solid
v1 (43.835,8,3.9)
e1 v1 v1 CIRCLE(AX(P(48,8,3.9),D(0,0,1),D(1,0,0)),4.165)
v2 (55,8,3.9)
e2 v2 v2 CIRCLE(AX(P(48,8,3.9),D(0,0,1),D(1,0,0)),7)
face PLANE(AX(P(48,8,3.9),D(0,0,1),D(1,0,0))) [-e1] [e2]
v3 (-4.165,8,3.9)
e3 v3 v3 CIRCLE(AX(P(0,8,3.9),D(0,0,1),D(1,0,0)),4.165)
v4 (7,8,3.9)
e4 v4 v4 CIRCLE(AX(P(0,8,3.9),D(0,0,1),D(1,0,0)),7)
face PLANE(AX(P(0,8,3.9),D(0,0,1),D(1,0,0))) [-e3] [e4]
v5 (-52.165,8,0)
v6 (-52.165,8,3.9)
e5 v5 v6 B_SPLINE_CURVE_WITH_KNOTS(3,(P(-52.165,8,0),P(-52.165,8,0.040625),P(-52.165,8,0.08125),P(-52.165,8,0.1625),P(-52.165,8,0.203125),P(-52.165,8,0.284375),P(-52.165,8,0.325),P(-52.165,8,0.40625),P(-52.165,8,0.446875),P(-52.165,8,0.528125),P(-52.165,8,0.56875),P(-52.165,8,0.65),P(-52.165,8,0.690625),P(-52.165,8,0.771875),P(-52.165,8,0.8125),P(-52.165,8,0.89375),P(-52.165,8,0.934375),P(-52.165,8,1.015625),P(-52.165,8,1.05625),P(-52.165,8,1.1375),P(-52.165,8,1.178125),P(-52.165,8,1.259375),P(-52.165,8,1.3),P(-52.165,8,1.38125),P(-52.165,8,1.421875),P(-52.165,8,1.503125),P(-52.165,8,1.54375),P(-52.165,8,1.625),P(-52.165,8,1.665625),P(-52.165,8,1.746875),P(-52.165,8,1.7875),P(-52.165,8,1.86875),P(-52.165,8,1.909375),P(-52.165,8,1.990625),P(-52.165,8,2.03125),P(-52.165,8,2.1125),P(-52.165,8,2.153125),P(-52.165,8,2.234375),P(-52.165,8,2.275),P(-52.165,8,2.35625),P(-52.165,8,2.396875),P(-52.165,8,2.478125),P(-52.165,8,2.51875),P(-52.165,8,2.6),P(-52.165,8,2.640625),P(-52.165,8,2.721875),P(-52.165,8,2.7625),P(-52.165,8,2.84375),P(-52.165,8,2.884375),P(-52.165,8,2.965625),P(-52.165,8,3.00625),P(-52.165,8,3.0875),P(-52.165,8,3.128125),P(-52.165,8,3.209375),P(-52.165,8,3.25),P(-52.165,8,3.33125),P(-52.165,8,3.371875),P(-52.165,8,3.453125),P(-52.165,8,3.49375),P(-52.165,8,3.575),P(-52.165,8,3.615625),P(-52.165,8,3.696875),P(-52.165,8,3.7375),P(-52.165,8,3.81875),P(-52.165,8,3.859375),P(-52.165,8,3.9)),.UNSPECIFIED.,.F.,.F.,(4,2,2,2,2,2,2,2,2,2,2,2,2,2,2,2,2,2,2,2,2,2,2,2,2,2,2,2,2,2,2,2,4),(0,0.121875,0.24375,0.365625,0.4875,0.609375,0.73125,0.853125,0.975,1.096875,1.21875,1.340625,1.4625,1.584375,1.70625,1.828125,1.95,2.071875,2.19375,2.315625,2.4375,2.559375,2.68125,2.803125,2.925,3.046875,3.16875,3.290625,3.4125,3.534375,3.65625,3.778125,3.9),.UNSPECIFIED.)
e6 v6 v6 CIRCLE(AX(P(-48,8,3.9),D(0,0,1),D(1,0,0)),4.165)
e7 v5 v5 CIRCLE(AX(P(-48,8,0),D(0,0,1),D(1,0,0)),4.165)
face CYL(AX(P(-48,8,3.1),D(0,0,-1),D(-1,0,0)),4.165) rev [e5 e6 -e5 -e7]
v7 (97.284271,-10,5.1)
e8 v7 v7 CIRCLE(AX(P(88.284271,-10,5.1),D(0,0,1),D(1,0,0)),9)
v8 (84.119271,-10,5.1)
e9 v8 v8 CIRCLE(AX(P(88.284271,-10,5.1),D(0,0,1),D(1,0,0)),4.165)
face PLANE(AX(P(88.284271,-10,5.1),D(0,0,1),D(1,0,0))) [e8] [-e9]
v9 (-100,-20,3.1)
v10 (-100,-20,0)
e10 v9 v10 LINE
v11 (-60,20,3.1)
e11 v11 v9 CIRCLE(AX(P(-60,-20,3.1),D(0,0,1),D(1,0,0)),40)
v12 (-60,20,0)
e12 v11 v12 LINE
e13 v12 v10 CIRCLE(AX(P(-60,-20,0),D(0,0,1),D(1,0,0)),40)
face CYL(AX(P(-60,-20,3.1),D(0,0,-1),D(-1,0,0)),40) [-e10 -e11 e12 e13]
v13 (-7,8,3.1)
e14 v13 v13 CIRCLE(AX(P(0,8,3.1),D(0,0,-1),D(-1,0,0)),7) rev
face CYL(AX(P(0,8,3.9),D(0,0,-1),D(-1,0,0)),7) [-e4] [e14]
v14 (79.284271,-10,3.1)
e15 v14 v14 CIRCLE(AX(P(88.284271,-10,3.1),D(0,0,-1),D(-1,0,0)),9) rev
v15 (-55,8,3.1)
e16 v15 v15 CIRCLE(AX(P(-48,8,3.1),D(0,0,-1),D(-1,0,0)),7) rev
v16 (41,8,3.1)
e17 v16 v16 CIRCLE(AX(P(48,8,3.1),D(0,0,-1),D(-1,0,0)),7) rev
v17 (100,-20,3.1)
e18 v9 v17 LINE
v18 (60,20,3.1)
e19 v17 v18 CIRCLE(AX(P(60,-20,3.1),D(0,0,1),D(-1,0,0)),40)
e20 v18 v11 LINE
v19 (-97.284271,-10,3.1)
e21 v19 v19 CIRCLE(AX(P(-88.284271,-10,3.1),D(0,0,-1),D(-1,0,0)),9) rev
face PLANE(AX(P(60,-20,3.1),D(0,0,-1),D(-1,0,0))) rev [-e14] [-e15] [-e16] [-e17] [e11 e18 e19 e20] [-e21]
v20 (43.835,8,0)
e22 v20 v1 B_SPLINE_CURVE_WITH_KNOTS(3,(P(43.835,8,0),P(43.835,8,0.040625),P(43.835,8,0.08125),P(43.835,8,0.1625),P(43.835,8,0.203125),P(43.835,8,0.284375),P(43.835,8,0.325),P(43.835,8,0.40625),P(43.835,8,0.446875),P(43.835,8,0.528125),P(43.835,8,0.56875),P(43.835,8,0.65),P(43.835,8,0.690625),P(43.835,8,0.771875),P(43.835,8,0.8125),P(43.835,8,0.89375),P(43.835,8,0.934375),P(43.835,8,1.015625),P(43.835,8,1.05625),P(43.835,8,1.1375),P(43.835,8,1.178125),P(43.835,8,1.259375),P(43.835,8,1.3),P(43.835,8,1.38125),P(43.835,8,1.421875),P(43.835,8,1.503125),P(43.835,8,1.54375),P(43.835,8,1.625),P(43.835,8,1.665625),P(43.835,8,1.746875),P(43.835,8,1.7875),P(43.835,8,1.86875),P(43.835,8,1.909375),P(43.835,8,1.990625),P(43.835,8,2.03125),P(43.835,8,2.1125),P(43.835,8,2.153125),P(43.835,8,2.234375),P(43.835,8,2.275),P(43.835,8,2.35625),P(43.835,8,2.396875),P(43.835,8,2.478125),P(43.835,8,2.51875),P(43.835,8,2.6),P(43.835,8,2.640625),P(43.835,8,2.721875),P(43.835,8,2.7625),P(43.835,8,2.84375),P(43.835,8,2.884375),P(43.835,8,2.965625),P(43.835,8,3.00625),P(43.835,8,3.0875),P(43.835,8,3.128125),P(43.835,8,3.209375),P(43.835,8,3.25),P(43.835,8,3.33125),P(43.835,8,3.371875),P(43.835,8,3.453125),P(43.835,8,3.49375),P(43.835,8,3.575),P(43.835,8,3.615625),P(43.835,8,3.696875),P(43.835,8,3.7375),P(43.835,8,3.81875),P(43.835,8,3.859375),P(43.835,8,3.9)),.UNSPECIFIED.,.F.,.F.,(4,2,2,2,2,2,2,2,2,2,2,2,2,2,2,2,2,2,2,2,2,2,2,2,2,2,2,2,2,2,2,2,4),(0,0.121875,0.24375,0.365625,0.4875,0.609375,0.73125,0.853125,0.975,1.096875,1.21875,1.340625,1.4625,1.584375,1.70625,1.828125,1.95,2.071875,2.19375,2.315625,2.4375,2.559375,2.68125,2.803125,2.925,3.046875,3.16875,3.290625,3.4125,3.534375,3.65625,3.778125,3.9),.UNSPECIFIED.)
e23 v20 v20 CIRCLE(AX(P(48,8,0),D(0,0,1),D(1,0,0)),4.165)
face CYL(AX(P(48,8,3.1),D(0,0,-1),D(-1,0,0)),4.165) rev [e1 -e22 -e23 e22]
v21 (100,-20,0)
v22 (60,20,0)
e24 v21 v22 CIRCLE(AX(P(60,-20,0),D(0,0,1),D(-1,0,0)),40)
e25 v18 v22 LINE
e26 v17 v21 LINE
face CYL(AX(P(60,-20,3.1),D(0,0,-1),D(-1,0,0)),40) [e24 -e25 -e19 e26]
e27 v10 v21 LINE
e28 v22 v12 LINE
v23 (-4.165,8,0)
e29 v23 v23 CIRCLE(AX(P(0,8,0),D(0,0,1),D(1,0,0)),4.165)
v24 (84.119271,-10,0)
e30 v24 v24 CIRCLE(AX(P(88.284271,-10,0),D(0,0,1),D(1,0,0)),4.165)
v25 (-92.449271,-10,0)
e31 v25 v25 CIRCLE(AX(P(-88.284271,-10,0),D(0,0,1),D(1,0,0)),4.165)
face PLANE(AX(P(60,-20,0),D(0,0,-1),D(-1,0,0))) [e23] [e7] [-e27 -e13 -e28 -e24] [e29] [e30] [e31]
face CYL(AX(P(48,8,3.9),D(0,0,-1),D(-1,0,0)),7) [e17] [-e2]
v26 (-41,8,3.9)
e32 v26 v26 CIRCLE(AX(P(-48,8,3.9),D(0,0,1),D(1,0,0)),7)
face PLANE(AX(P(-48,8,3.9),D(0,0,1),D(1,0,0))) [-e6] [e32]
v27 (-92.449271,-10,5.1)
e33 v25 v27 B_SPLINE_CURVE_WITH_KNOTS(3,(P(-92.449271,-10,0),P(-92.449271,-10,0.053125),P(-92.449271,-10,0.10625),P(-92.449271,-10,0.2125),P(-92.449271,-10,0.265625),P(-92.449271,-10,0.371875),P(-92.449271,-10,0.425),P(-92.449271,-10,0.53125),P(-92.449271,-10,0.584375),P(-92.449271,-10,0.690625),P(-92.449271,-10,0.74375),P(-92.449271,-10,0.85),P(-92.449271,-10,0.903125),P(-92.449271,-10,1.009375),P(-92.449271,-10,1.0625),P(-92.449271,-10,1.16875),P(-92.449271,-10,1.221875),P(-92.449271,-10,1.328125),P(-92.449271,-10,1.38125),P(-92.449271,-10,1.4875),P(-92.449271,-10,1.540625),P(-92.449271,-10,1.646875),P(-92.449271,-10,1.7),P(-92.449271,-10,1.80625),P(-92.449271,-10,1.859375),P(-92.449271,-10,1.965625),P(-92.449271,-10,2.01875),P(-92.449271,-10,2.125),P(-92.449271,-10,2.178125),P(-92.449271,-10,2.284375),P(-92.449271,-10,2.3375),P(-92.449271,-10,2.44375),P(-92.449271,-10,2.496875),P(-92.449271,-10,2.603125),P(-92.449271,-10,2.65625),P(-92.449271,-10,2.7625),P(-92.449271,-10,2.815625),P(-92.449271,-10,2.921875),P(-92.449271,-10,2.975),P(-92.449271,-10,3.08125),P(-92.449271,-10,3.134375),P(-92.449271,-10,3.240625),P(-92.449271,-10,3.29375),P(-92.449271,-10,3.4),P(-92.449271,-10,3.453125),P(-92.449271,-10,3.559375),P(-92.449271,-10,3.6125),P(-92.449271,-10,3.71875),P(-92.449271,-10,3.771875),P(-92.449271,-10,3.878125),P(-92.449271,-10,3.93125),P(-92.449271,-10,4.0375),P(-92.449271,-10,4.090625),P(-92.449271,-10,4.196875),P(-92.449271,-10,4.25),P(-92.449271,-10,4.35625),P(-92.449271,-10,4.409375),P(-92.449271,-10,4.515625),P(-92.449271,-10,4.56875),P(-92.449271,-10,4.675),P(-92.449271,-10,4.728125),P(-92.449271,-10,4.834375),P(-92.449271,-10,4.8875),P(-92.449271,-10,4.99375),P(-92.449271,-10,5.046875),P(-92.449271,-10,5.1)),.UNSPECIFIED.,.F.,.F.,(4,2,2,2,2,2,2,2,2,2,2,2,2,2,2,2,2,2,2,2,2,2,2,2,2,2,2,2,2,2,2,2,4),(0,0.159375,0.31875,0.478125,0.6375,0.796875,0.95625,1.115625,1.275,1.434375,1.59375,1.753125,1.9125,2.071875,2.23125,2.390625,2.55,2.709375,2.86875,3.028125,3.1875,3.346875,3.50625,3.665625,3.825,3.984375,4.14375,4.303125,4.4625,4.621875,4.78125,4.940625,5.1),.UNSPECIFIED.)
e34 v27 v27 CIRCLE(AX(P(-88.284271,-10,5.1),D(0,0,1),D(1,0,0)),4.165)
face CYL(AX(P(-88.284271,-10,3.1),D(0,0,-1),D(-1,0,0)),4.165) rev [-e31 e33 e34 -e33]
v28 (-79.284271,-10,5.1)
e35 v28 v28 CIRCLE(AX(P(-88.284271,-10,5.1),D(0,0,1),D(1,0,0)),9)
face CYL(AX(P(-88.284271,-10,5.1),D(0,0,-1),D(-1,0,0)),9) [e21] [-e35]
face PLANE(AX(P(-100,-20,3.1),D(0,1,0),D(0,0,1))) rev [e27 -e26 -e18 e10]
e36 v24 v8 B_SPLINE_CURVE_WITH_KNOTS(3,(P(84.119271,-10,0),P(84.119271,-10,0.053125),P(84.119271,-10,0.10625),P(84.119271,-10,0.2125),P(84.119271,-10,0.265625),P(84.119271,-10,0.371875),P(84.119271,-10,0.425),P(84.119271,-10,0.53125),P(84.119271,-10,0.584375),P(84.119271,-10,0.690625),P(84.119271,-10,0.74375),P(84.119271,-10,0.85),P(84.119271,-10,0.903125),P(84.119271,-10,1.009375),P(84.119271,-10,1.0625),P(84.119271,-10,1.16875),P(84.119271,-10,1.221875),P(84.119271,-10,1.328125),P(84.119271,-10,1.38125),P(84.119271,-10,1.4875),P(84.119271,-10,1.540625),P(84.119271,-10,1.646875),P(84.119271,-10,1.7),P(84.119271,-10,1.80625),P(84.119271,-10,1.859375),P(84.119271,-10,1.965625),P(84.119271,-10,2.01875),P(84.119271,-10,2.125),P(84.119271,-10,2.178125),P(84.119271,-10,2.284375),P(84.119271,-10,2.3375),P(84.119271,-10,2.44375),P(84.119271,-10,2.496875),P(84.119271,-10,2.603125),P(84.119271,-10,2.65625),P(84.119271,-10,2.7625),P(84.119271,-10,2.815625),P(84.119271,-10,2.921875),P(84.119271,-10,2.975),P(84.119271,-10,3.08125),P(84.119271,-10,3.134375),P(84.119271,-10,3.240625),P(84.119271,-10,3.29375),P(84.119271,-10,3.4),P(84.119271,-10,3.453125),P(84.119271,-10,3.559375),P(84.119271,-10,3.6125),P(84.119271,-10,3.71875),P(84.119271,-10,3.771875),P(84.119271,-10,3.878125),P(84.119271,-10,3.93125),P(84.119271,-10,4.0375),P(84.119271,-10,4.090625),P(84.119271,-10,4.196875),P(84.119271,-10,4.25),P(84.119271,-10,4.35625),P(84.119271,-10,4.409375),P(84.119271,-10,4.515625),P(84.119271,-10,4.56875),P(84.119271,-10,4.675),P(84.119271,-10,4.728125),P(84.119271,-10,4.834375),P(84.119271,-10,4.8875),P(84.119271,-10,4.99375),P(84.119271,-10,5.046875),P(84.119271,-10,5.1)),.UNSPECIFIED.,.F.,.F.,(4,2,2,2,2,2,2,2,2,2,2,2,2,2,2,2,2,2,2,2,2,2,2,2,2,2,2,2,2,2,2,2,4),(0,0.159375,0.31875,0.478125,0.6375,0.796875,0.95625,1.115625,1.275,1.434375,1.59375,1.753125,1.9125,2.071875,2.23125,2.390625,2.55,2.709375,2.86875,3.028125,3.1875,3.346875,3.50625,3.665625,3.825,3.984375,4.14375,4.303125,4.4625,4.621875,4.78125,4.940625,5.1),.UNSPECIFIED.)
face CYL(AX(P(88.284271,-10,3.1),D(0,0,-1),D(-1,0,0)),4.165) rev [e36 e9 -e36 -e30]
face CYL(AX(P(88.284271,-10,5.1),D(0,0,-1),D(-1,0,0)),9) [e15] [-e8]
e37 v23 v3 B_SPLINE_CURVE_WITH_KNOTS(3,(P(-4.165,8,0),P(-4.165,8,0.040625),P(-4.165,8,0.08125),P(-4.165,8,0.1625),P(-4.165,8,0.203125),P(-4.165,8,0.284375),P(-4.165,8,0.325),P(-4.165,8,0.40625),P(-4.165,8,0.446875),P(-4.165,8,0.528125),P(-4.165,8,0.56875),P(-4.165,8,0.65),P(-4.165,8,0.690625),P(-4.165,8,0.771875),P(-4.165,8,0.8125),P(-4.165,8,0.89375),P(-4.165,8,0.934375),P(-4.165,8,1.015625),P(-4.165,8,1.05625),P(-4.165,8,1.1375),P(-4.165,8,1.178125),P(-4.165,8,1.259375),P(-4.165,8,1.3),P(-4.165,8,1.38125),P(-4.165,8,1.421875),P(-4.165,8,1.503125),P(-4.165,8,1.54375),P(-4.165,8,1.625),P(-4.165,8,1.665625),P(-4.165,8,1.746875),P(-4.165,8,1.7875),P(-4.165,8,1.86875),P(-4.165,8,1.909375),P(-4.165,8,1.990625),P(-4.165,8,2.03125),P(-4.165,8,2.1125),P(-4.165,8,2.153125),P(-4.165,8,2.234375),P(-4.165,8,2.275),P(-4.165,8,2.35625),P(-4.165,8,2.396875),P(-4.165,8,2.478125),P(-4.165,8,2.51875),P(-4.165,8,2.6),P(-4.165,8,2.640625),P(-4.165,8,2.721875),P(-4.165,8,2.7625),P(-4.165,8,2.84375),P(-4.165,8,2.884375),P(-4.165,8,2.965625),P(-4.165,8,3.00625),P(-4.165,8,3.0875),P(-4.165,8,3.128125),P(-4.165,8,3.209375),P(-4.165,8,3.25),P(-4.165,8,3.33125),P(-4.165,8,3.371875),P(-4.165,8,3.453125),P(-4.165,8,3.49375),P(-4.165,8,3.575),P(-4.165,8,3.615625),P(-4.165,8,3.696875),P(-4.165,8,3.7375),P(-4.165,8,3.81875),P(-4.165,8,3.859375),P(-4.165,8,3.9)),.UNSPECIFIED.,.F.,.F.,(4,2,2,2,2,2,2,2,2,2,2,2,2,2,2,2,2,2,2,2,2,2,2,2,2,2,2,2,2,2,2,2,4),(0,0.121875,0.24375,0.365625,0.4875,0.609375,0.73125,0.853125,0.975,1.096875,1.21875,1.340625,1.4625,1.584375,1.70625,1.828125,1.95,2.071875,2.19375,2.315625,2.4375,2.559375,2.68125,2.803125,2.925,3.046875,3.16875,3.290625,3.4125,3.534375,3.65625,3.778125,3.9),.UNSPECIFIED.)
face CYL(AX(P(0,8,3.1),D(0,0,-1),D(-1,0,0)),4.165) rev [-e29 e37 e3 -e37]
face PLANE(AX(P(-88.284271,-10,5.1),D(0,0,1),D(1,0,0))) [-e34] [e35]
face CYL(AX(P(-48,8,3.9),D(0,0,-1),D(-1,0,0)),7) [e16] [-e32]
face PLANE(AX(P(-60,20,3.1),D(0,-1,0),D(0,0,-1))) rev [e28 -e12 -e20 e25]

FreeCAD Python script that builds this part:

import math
import FreeCAD as App
import Part
import Sketcher
from FreeCAD import Vector

doc = App.newDocument("Part")
params = doc.addObject("Spreadsheet::Sheet", "Params")
for row, (alias, value) in enumerate([
    ("sketch1_radius", "40 mm"),
    ("sketch1_diameter", "8.33 mm"),
    ("sketch1_width", "120 mm"),
    ("pad1_length", "3.1 mm"),
    ("sketch2_diameter", "14 mm"),
    ("sketch2_diameter2", "8.33 mm"),
    ("pad2_length", "0.8 mm"),
    ("sketch3_diameter", "18 mm"),
    ("sketch3_diameter2", "8.33 mm"),
    ("pad3_length", "2 mm"),
], start=1):
    params.set(f"A{row}", alias)
    params.set(f"B{row}", "=" + value)
    params.setAlias(f"B{row}", alias)

body = doc.addObject("PartDesign::Body", "Body")

# Sketch on XY plane
sketch1 = body.newObject("Sketcher::SketchObject", "Sketch")
sketch1.AttachmentSupport = (doc.getObject("XY_Plane"), [""])
sketch1.MapMode = "FlatFace"
sketch1.addGeometry([
    Part.LineSegment(Vector(60, 20, 0), Vector(-60, 20, 0)),  # 0
    Part.ArcOfCircle(Part.Circle(Vector(-60, -20, 0), Vector(0, 0, 1), 40), math.radians(90), math.radians(180)),  # 1
    Part.LineSegment(Vector(-100, -20, 0), Vector(100, -20, 0)),  # 2
    Part.ArcOfCircle(Part.Circle(Vector(60, -20, 0), Vector(0, 0, 1), 40), math.radians(0), math.radians(90)),  # 3
    Part.Circle(Vector(88.3, -10, 0), Vector(0, 0, 1), 4.2),  # 4
    Part.Circle(Vector(-88.3, -10, 0), Vector(0, 0, 1), 4.2),  # 5
    Part.Circle(Vector(48, 8, 0), Vector(0, 0, 1), 4.2),  # 6
    Part.Circle(Vector(0, 8, 0), Vector(0, 0, 1), 4.2),  # 7
    Part.Circle(Vector(-48, 8, 0), Vector(0, 0, 1), 4.2),  # 8
], False)
sketch1.addConstraint([
    Sketcher.Constraint("Tangent", 0, 2, 1, 1),
    Sketcher.Constraint("Coincident", 1, 2, 2, 1),
    Sketcher.Constraint("Coincident", 2, 2, 3, 1),
    Sketcher.Constraint("Tangent", 3, 2, 0, 1),
    Sketcher.Constraint("Horizontal", 0),
    Sketcher.Constraint("Horizontal", 2),
    Sketcher.Constraint("Equal", 1, 3),
    Sketcher.Constraint("Equal", 4, 5),
    Sketcher.Constraint("Equal", 5, 6),
    Sketcher.Constraint("Equal", 6, 7),
    Sketcher.Constraint("Equal", 7, 8),
    Sketcher.Constraint("Symmetric", 4, 3, 5, 3, -2),
    Sketcher.Constraint("Symmetric", 6, 3, 8, 3, -2),
    Sketcher.Constraint("PointOnObject", 7, 3, -2),
    Sketcher.Constraint("Horizontal", 6, 3, 7, 3),
    Sketcher.Constraint("Horizontal", 3, 3, 1, 2),
    Sketcher.Constraint("Radius", 1, 40.0),
    Sketcher.Constraint("Diameter", 4, 8.33),
    Sketcher.Constraint("DistanceX", 0, 2, 0, 1, 120.0),
    Sketcher.Constraint("DistanceX", 1, 3, -1, 1, 60.0),
    Sketcher.Constraint("DistanceY", 1, 3, -1, 1, 20.0),
    Sketcher.Constraint("DistanceY", 4, 3, -1, 1, 10.0),
    Sketcher.Constraint("DistanceX", -1, 1, 6, 3, 48.0),
    Sketcher.Constraint("DistanceY", -1, 1, 6, 3, 8.0),
    Sketcher.Constraint("DistanceX", -1, 1, 4, 3, 88.284271),
])
sketch1.setExpression("Constraints[16]", "Params.sketch1_radius")
sketch1.setExpression("Constraints[17]", "Params.sketch1_diameter")
sketch1.setExpression("Constraints[18]", "Params.sketch1_width")
pad1 = body.newObject("PartDesign::Pad", "Pad")
pad1.Profile = sketch1
pad1.setExpression("Length", "Params.pad1_length")

# Sketch on XY plane
sketch2 = body.newObject("Sketcher::SketchObject", "Sketch001")
sketch2.AttachmentSupport = (doc.getObject("XY_Plane"), [""])
sketch2.MapMode = "FlatFace"
sketch2.AttachmentOffset = App.Placement(Vector(0, 0, 3.1), App.Rotation())
sketch2.addGeometry([
    Part.Circle(Vector(-48, 8, 0), Vector(0, 0, 1), 7),  # 0
    Part.Circle(Vector(-48, 8, 0), Vector(0, 0, 1), 4.2),  # 1
    Part.Circle(Vector(0, 8, 0), Vector(0, 0, 1), 7),  # 2
    Part.Circle(Vector(0, 8, 0), Vector(0, 0, 1), 4.2),  # 3
    Part.Circle(Vector(48, 8, 0), Vector(0, 0, 1), 7),  # 4
    Part.Circle(Vector(48, 8, 0), Vector(0, 0, 1), 4.2),  # 5
], False)
sketch2.addConstraint([
    Sketcher.Constraint("Coincident", 1, 3, 0, 3),
    Sketcher.Constraint("Coincident", 3, 3, 2, 3),
    Sketcher.Constraint("Coincident", 5, 3, 4, 3),
    Sketcher.Constraint("Equal", 0, 2),
    Sketcher.Constraint("Equal", 1, 3),
    Sketcher.Constraint("Equal", 2, 4),
    Sketcher.Constraint("Equal", 3, 5),
    Sketcher.Constraint("Symmetric", 0, 3, 4, 3, -2),
    Sketcher.Constraint("PointOnObject", 2, 3, -2),
    Sketcher.Constraint("Horizontal", 1, 3, 2, 3),
    Sketcher.Constraint("Diameter", 0, 14.0),
    Sketcher.Constraint("Diameter", 1, 8.33),
    Sketcher.Constraint("DistanceX", 0, 3, -1, 1, 48.0),
    Sketcher.Constraint("DistanceY", -1, 1, 0, 3, 8.0),
])
sketch2.setExpression("Constraints[10]", "Params.sketch2_diameter")
sketch2.setExpression("Constraints[11]", "Params.sketch2_diameter2")
pad2 = body.newObject("PartDesign::Pad", "Pad001")
pad2.Profile = sketch2
pad2.setExpression("Length", "Params.pad2_length")

# Sketch on XY plane
sketch3 = body.newObject("Sketcher::SketchObject", "Sketch002")
sketch3.AttachmentSupport = (doc.getObject("XY_Plane"), [""])
sketch3.MapMode = "FlatFace"
sketch3.AttachmentOffset = App.Placement(Vector(0, 0, 3.1), App.Rotation())
sketch3.addGeometry([
    Part.Circle(Vector(-88.3, -10, 0), Vector(0, 0, 1), 9),
    Part.Circle(Vector(-88.3, -10, 0), Vector(0, 0, 1), 4.2),
    Part.Circle(Vector(88.3, -10, 0), Vector(0, 0, 1), 9),
    Part.Circle(Vector(88.3, -10, 0), Vector(0, 0, 1), 4.2),
], False)
sketch3.addConstraint([
    Sketcher.Constraint("Coincident", 1, 3, 0, 3),
    Sketcher.Constraint("Coincident", 3, 3, 2, 3),
    Sketcher.Constraint("Equal", 0, 2),
    Sketcher.Constraint("Equal", 1, 3),
    Sketcher.Constraint("Symmetric", 0, 3, 2, 3, -2),
    Sketcher.Constraint("Diameter", 0, 18.0),
    Sketcher.Constraint("Diameter", 1, 8.33),
    Sketcher.Constraint("DistanceY", 0, 3, -1, 1, 10.0),
    Sketcher.Constraint("DistanceX", 0, 3, -1, 1, 88.284271),
])
sketch3.setExpression("Constraints[5]", "Params.sketch3_diameter")
sketch3.setExpression("Constraints[6]", "Params.sketch3_diameter2")
pad3 = body.newObject("PartDesign::Pad", "Pad002")
pad3.Profile = sketch3
pad3.setExpression("Length", "Params.pad3_length")

doc.recompute()
